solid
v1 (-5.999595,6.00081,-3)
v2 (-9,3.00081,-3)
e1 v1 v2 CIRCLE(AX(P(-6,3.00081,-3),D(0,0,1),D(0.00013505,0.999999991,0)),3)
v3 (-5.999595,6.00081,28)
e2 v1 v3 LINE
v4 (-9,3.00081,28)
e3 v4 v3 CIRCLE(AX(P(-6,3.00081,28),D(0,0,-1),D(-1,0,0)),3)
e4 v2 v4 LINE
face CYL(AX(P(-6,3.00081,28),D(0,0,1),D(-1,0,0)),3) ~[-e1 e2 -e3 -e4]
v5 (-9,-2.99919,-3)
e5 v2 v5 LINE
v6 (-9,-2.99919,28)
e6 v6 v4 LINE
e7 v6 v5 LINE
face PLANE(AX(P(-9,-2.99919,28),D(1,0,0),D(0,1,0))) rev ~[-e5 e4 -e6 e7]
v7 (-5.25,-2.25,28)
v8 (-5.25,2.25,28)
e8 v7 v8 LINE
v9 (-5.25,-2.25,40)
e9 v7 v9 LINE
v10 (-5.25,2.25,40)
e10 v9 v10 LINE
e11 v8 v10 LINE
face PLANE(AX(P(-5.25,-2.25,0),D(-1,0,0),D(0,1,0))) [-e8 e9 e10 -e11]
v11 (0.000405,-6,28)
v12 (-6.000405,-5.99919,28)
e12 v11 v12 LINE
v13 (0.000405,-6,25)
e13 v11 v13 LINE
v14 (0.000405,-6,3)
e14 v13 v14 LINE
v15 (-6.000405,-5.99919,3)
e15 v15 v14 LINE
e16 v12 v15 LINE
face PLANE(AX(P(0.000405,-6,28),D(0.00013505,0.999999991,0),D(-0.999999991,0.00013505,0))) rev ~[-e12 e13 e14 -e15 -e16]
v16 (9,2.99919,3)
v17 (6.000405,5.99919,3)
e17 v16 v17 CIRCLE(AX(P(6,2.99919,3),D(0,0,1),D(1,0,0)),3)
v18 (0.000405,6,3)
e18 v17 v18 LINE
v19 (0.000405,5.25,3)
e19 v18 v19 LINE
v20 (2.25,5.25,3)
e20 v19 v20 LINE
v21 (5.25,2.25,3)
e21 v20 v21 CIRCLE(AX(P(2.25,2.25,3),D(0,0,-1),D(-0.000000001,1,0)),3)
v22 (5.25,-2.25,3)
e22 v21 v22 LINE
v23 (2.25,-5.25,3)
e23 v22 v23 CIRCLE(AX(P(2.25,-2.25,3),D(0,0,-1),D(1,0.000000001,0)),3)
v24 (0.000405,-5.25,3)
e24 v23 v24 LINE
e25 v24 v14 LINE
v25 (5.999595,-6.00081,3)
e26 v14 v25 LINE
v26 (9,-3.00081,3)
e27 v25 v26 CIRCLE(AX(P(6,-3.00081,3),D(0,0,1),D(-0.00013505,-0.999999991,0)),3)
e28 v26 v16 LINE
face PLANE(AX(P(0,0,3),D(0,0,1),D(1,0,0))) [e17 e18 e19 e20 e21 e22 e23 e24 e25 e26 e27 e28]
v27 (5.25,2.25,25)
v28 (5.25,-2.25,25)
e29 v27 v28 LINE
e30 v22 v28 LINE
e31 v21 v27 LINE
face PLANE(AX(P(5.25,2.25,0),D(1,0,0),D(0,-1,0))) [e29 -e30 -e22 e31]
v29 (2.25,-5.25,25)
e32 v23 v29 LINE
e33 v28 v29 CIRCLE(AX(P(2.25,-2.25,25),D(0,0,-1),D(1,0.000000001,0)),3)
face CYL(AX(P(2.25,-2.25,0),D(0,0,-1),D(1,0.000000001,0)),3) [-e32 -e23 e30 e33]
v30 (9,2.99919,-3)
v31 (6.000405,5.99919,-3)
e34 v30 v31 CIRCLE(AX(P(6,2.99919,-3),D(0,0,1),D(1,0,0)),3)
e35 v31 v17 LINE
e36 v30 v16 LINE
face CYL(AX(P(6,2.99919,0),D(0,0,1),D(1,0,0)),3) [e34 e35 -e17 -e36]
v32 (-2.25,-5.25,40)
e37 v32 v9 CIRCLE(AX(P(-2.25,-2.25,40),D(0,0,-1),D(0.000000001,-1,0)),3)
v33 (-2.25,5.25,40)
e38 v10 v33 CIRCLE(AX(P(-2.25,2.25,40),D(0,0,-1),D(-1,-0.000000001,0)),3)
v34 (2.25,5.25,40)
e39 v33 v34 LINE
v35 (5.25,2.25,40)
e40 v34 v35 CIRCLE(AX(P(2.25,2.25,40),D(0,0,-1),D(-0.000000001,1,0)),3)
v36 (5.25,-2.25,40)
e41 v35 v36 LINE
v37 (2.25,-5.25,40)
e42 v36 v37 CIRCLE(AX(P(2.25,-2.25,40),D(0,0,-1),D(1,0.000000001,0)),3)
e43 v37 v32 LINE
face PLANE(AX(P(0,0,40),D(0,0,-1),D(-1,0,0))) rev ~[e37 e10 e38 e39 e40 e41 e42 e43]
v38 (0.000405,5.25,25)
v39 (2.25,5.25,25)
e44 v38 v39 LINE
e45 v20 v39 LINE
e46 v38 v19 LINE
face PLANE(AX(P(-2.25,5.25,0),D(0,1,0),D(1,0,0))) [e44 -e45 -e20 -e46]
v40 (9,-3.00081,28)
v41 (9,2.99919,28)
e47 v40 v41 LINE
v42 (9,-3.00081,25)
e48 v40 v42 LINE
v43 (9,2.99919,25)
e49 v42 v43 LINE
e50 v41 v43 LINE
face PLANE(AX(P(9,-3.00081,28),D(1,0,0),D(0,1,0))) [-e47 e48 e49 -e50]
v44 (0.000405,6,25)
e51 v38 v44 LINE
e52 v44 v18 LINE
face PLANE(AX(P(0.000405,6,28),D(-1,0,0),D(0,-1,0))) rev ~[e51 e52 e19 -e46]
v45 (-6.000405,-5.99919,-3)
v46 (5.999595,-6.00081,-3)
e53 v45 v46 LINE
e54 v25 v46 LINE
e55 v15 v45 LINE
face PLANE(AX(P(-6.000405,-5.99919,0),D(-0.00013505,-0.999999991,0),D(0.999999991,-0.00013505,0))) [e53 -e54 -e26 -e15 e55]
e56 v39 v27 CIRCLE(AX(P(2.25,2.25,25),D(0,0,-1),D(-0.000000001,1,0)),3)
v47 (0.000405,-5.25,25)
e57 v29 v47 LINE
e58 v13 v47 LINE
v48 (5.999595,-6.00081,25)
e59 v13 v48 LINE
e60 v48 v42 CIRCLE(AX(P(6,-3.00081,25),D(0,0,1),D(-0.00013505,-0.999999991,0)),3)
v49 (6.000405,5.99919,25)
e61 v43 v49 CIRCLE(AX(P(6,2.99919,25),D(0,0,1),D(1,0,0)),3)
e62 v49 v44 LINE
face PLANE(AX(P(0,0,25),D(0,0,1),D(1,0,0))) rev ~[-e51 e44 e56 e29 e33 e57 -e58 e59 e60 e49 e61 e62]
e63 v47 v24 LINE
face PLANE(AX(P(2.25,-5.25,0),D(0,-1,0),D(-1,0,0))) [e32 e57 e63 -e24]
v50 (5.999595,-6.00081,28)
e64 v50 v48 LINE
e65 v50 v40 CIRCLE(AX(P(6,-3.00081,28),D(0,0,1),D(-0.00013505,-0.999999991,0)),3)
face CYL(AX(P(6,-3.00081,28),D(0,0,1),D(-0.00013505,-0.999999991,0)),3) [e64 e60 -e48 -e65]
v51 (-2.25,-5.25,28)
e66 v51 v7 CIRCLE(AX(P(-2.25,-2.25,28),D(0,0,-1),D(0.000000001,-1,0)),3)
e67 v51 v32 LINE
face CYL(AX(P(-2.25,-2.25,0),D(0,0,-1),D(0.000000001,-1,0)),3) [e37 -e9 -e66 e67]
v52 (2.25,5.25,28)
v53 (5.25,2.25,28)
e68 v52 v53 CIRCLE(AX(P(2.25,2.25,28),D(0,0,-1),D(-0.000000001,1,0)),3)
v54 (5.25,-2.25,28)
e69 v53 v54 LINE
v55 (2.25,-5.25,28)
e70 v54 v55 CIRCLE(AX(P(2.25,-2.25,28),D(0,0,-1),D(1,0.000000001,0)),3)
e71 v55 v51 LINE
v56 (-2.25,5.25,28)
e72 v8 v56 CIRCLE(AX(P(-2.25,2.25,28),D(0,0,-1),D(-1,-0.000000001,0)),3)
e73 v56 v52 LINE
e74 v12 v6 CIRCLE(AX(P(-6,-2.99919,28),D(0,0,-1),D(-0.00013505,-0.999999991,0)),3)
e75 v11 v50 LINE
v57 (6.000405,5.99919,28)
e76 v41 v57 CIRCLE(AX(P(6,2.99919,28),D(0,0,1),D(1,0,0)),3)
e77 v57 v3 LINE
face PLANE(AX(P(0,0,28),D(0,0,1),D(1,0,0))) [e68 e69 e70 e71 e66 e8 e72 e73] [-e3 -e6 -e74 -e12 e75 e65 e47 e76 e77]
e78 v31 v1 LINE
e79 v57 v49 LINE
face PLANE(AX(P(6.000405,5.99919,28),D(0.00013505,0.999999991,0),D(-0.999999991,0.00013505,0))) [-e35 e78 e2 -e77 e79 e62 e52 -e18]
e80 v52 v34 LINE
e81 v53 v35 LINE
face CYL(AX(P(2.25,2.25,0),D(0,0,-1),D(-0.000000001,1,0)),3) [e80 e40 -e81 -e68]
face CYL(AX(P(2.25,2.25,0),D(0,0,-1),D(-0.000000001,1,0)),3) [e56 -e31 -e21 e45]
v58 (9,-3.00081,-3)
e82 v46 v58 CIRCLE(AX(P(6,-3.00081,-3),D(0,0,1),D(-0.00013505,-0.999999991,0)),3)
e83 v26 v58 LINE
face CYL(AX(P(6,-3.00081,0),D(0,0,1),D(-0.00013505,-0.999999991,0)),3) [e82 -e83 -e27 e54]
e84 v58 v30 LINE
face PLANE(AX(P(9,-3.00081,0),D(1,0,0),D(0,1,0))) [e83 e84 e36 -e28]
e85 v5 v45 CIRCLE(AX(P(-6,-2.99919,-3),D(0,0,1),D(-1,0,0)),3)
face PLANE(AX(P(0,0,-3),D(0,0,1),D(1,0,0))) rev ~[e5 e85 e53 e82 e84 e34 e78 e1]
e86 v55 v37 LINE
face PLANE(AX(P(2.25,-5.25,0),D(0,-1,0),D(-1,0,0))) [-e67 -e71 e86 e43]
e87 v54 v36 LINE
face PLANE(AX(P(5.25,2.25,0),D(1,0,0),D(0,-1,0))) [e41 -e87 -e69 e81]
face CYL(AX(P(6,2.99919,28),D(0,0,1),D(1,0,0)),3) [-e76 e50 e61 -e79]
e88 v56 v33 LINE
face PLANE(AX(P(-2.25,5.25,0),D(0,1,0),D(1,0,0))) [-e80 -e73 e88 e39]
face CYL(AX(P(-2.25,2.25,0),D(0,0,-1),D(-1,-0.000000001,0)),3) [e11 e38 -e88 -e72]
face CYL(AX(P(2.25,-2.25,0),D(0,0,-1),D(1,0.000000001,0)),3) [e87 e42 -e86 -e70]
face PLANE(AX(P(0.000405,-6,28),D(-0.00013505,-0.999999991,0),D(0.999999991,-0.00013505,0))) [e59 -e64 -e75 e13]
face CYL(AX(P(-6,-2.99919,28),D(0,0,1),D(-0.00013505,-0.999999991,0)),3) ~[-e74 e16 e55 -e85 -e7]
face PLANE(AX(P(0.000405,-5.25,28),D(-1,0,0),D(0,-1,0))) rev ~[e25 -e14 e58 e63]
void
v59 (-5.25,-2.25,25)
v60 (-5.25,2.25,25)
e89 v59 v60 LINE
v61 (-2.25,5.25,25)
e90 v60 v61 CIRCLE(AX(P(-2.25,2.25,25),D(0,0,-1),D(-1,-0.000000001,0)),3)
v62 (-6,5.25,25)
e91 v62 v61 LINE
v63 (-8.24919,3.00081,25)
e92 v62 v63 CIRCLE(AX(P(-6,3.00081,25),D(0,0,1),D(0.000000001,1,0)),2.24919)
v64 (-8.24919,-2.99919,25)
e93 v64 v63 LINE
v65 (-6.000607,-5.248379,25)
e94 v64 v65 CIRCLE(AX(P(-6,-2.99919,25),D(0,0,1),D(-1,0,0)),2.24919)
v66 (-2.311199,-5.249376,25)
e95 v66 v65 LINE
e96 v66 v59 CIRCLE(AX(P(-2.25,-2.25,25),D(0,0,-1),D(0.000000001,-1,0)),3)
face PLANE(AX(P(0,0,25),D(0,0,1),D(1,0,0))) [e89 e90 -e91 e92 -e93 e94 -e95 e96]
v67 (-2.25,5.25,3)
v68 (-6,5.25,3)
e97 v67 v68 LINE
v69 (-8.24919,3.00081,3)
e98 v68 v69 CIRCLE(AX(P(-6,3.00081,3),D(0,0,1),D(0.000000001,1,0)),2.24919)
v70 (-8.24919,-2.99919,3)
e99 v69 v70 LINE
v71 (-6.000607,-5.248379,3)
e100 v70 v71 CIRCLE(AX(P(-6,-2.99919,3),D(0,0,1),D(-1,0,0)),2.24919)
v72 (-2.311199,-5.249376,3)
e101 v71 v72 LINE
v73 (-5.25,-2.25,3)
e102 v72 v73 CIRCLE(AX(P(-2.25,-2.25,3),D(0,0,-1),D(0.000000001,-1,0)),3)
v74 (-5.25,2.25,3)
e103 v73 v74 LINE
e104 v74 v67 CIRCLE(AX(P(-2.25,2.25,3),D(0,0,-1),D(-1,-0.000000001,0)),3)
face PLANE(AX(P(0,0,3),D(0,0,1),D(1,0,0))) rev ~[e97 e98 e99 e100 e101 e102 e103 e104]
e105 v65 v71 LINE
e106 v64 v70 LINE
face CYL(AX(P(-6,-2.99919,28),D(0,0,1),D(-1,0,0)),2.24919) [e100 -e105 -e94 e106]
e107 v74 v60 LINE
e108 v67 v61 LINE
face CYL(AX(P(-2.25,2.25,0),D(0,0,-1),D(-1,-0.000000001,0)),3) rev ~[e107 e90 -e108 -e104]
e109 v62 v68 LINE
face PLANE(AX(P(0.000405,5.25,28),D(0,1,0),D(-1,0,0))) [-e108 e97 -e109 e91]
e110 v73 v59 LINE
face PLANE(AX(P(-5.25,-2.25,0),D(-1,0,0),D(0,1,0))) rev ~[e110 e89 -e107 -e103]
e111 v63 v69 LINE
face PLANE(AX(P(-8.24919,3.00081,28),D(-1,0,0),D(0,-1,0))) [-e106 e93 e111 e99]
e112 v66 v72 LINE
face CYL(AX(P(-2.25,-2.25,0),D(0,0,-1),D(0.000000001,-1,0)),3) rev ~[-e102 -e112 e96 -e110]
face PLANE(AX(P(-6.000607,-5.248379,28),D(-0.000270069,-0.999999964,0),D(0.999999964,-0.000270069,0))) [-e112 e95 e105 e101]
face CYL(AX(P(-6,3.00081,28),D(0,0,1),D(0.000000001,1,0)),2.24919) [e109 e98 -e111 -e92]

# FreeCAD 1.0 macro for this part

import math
import FreeCAD as App
import Part
import Sketcher

V = App.Vector
Q = App.Units.Quantity

doc = App.newDocument("Part")
body = doc.addObject("PartDesign::Body", "Body")

sketch1 = body.newObject("Sketcher::SketchObject", "Sketch")
sketch1.AttachmentSupport = (doc.getObject("XY_Plane"), [""])
sketch1.MapMode = "FlatFace"
sketch1.addGeometry([
    Part.LineSegment(V(2.2, 5.2, 0), V(-2.2, 5.2, 0)),
    Part.ArcOfCircle(Part.Circle(V(-2.3, 2.3, 0), V(0, 0, 1), 3), math.radians(90), math.radians(180)),
    Part.LineSegment(V(-5.2, 2.2, 0), V(-5.2, -2.2, 0)),
    Part.ArcOfCircle(Part.Circle(V(-2.3, -2.3, 0), V(0, 0, 1), 3), math.radians(180), math.radians(270)),
    Part.LineSegment(V(-2.2, -5.2, 0), V(2.2, -5.2, 0)),
    Part.ArcOfCircle(Part.Circle(V(2.3, -2.3, 0), V(0, 0, 1), 3), math.radians(-90), math.radians(0)),
    Part.LineSegment(V(5.2, -2.2, 0), V(5.2, 2.2, 0)),
    Part.ArcOfCircle(Part.Circle(V(2.3, 2.3, 0), V(0, 0, 1), 3), math.radians(0), math.radians(90)),
], False)
sketch1.addConstraint([
    Sketcher.Constraint("Tangent", 0, 2, 1, 1),
    Sketcher.Constraint("Tangent", 1, 2, 2, 1),
    Sketcher.Constraint("Tangent", 2, 2, 3, 1),
    Sketcher.Constraint("Tangent", 3, 2, 4, 1),
    Sketcher.Constraint("Tangent", 4, 2, 5, 1),
    Sketcher.Constraint("Tangent", 5, 2, 6, 1),
    Sketcher.Constraint("Tangent", 6, 2, 7, 1),
    Sketcher.Constraint("Tangent", 7, 2, 0, 1),
    Sketcher.Constraint("Horizontal", 0),
    Sketcher.Constraint("Vertical", 2),
    Sketcher.Constraint("Horizontal", 4),
    Sketcher.Constraint("Vertical", 6),
    Sketcher.Constraint("Equal", 1, 3),
    Sketcher.Constraint("Equal", 3, 5),
    Sketcher.Constraint("Equal", 5, 7),
    Sketcher.Constraint("Symmetric", 1, 3, 5, 3, -1, 1),
    Sketcher.Constraint("Equal", 4, 2),
    Sketcher.Constraint("Radius", 1, Q("3 mm")),
    Sketcher.Constraint("DistanceX", 0, 2, 0, 1, Q("4.5 mm")),
])
pad1 = body.newObject("PartDesign::Pad", "Pad")
pad1.Profile = sketch1
pad1.Length = 40

sketch2 = body.newObject("Sketcher::SketchObject", "Sketch001")
sketch2.AttachmentSupport = (doc.getObject("XY_Plane"), [""])
sketch2.MapMode = "FlatFace"
sketch2.addGeometry([
    Part.LineSegment(V(9, -3, 0), V(9, 3, 0)),
    Part.ArcOfCircle(Part.Circle(V(6, 3, 0), V(0, 0, 1), 3), math.radians(0), math.radians(90)),
    Part.LineSegment(V(6, 6, 0), V(-6, 6, 0)),
    Part.ArcOfCircle(Part.Circle(V(-6, 3, 0), V(0, 0, 1), 3), math.radians(90), math.radians(180)),
    Part.LineSegment(V(-9, 3, 0), V(-9, -3, 0)),
    Part.ArcOfCircle(Part.Circle(V(-6, -3, 0), V(0, 0, 1), 3), math.radians(180), math.radians(270)),
    Part.LineSegment(V(-6, -6, 0), V(6, -6, 0)),
    Part.ArcOfCircle(Part.Circle(V(6, -3, 0), V(0, 0, 1), 3), math.radians(-90), math.radians(0)),
], False)
sketch2.addConstraint([
    Sketcher.Constraint("Tangent", 0, 2, 1, 1),
    Sketcher.Constraint("Tangent", 1, 2, 2, 1),
    Sketcher.Constraint("Tangent", 2, 2, 3, 1),
    Sketcher.Constraint("Tangent", 3, 2, 4, 1),
    Sketcher.Constraint("Tangent", 4, 2, 5, 1),
    Sketcher.Constraint("Tangent", 5, 2, 6, 1),
    Sketcher.Constraint("Tangent", 6, 2, 7, 1),
    Sketcher.Constraint("Tangent", 7, 2, 0, 1),
    Sketcher.Constraint("Vertical", 0),
    Sketcher.Constraint("Vertical", 4),
    Sketcher.Constraint("Equal", 1, 3),
    Sketcher.Constraint("Equal", 3, 5),
    Sketcher.Constraint("Equal", 5, 7),
    Sketcher.Constraint("Symmetric", 1, 3, 5, 3, -1, 1),
    Sketcher.Constraint("Parallel", 2, 6),
    Sketcher.Constraint("Radius", 1, Q("3 mm")),
    Sketcher.Constraint("DistanceY", 0, 1, 0, 2, Q("6 mm")),
    Sketcher.Constraint("Distance", 2, Q("12 mm")),
    Sketcher.Constraint("DistanceY", -1, 1, 1, 3, Q("2.99919 mm")),
])
pad2 = body.newObject("PartDesign::Pad", "Pad001")
pad2.Profile = sketch2
pad2.Length = 6
pad2.Midplane = True

sketch3 = body.newObject("Sketcher::SketchObject", "Sketch002")
sketch3.AttachmentSupport = (doc.getObject("XY_Plane"), [""])
sketch3.MapMode = "FlatFace"
sketch3.AttachmentOffset = App.Placement(V(0, 0, 28), App.Rotation())
sketch3.addGeometry([
    Part.LineSegment(V(-6, 5.2, 0), V(0, 5.2, 0)),
    Part.LineSegment(V(0, 5.2, 0), V(0, 6, 0)),
    Part.LineSegment(V(0, 6, 0), V(-6, 6, 0)),
    Part.ArcOfCircle(Part.Circle(V(-6, 3, 0), V(0, 0, 1), 3), math.radians(90), math.radians(180)),
    Part.LineSegment(V(-9, 3, 0), V(-9, -3, 0)),
    Part.ArcOfCircle(Part.Circle(V(-6, -3, 0), V(0, 0, 1), 3), math.radians(180), math.radians(270)),
    Part.LineSegment(V(-6, -6, 0), V(0, -6, 0)),
    Part.LineSegment(V(0, -6, 0), V(0, -5.2, 0)),
    Part.LineSegment(V(0, -5.2, 0), V(-6, -5.2, 0)),
    Part.ArcOfCircle(Part.Circle(V(-6, -3, 0), V(0, 0, 1), 2.2), math.radians(180), math.radians(270)),
    Part.LineSegment(V(-8.2, -3, 0), V(-8.2, 3, 0)),
    Part.ArcOfCircle(Part.Circle(V(-6, 3, 0), V(0, 0, 1), 2.2), math.radians(90), math.radians(180)),
], False)
sketch3.addConstraint([
    Sketcher.Constraint("Coincident", 0, 2, 1, 1),
    Sketcher.Constraint("Coincident", 1, 2, 2, 1),
    Sketcher.Constraint("Tangent", 2, 2, 3, 1),
    Sketcher.Constraint("Tangent", 3, 2, 4, 1),
    Sketcher.Constraint("Tangent", 4, 2, 5, 1),
    Sketcher.Constraint("Tangent", 5, 2, 6, 1),
    Sketcher.Constraint("Coincident", 6, 2, 7, 1),
    Sketcher.Constraint("Coincident", 7, 2, 8, 1),
    Sketcher.Constraint("Tangent", 8, 2, 9, 2),
    Sketcher.Constraint("Tangent", 9, 1, 10, 1),
    Sketcher.Constraint("Tangent", 10, 2, 11, 2),
    Sketcher.Constraint("Tangent", 11, 1, 0, 1),
    Sketcher.Constraint("Horizontal", 0),
    Sketcher.Constraint("Vertical", 1),
    Sketcher.Constraint("Vertical", 4),
    Sketcher.Constraint("Vertical", 7),
    Sketcher.Constraint("Vertical", 10),
    Sketcher.Constraint("Coincident", 9, 3, 5, 3),
    Sketcher.Constraint("Coincident", 11, 3, 3, 3),
    Sketcher.Constraint("Equal", 3, 5),
    Sketcher.Constraint("Symmetric", 1, 2, 6, 2, -1),
    Sketcher.Constraint("Parallel", 2, 6),
    Sketcher.Constraint("Equal", 1, 7),
    Sketcher.Constraint("Radius", 3, Q("3 mm")),
    Sketcher.Constraint("DistanceY", 4, 2, 4, 1, Q("6 mm")),
    Sketcher.Constraint("Distance", 2, Q("6 mm")),
    Sketcher.Constraint("DistanceX", 3, 3, -1, 1, Q("6 mm")),
    Sketcher.Constraint("DistanceY", 1, 1, 1, 2, Q("0.75 mm")),
    Sketcher.Constraint("Radius", 9, Q("2.24919 mm")),
])
pad3 = body.newObject("PartDesign::Pad", "Pad002")
pad3.Profile = sketch3
pad3.Length = 25
pad3.Reversed = True

sketch4 = body.newObject("Sketcher::SketchObject", "Sketch003")
sketch4.AttachmentSupport = (doc.getObject("XY_Plane"), [""])
sketch4.MapMode = "FlatFace"
sketch4.AttachmentOffset = App.Placement(V(0, 0, 28), App.Rotation())
sketch4.addGeometry([
    Part.LineSegment(V(0, -6, 0), V(6, -6, 0)),
    Part.ArcOfCircle(Part.Circle(V(6, -3, 0), V(0, 0, 1), 3), math.radians(-90), math.radians(0)),
    Part.LineSegment(V(9, -3, 0), V(9, 3, 0)),
    Part.ArcOfCircle(Part.Circle(V(6, 3, 0), V(0, 0, 1), 3), math.radians(0), math.radians(90)),
    Part.LineSegment(V(6, 6, 0), V(-6, 6, 0)),
    Part.ArcOfCircle(Part.Circle(V(-6, 3, 0), V(0, 0, 1), 3), math.radians(90), math.radians(180)),
    Part.LineSegment(V(-9, 3, 0), V(-9, -3, 0)),
    Part.ArcOfCircle(Part.Circle(V(-6, -3, 0), V(0, 0, 1), 3), math.radians(180), math.radians(270)),
    Part.LineSegment(V(-6, -6, 0), V(0, -6, 0)),
], False)
sketch4.addConstraint([
    Sketcher.Constraint("Tangent", 0, 2, 1, 1),
    Sketcher.Constraint("Tangent", 1, 2, 2, 1),
    Sketcher.Constraint("Tangent", 2, 2, 3, 1),
    Sketcher.Constraint("Tangent", 3, 2, 4, 1),
    Sketcher.Constraint("Tangent", 4, 2, 5, 1),
    Sketcher.Constraint("Tangent", 5, 2, 6, 1),
    Sketcher.Constraint("Tangent", 6, 2, 7, 1),
    Sketcher.Constraint("Tangent", 7, 2, 8, 1),
    Sketcher.Constraint("Coincident", 8, 2, 0, 1),
    Sketcher.Constraint("Vertical", 2),
    Sketcher.Constraint("Vertical", 6),
    Sketcher.Constraint("Equal", 1, 3),
    Sketcher.Constraint("Equal", 3, 5),
    Sketcher.Constraint("Equal", 5, 7),
    Sketcher.Constraint("Symmetric", 1, 3, 5, 3, -1, 1),
    Sketcher.Constraint("Symmetric", 3, 2, 7, 2, -1, 1),
    Sketcher.Constraint("Radius", 1, Q("3 mm")),
    Sketcher.Constraint("DistanceY", 2, 1, 2, 2, Q("6 mm")),
    Sketcher.Constraint("Distance", 4, Q("12 mm")),
    Sketcher.Constraint("Distance", 0, Q("5.99919 mm")),
    Sketcher.Constraint("DistanceY", 1, 3, -1, 1, Q("3.00081 mm")),
])
pad4 = body.newObject("PartDesign::Pad", "Pad003")
pad4.Profile = sketch4
pad4.Length = 3
pad4.Reversed = True

doc.recompute()
